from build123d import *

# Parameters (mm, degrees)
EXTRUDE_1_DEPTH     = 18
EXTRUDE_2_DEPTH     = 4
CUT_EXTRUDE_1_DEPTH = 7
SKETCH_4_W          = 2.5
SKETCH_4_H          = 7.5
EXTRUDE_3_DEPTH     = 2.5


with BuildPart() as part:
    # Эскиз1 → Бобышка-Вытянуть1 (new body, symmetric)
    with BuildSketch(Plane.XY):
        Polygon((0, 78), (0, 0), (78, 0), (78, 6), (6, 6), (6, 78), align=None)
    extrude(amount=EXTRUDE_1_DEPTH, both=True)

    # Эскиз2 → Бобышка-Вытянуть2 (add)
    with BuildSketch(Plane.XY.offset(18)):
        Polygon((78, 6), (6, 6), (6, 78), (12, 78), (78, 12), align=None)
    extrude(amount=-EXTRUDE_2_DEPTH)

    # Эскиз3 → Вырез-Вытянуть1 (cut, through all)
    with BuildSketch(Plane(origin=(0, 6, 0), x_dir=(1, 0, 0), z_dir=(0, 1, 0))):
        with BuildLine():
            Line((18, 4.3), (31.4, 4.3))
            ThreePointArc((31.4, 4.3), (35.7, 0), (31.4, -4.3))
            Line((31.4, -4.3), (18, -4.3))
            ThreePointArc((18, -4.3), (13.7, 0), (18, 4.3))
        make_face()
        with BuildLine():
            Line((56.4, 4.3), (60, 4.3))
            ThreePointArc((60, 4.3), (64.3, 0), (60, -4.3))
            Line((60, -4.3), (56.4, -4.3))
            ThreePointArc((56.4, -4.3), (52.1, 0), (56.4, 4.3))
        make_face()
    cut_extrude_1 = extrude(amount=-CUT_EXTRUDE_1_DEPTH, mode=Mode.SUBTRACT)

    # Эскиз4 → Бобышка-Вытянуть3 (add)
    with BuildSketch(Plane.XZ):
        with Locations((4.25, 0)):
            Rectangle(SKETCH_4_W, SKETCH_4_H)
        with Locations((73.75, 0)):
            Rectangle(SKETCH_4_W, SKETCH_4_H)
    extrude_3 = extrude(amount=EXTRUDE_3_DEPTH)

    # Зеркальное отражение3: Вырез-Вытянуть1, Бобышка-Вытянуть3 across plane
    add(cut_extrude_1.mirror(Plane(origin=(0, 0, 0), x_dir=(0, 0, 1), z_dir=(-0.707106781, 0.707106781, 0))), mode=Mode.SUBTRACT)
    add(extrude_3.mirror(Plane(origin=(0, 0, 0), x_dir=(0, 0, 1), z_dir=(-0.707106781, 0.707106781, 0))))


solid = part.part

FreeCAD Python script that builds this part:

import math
import FreeCAD as App
import Part
import Sketcher

doc = App.newDocument("Part")
body = doc.addObject("PartDesign::Body", "Body")

# Sketch on XY plane
sketch1 = doc.addObject("Sketcher::SketchObject", "Sketch")
body.addObject(sketch1)
sketch1.AttachmentSupport = (doc.XY_Plane, [""])
sketch1.MapMode = "FlatFace"
sketch1.addGeometry([
    Part.LineSegment(App.Vector(0, 78, 0), App.Vector(0, 0, 0)),  # 0
    Part.LineSegment(App.Vector(0, 0, 0), App.Vector(78, 0, 0)),  # 1
    Part.LineSegment(App.Vector(78, 0, 0), App.Vector(78, 6, 0)),  # 2
    Part.LineSegment(App.Vector(78, 6, 0), App.Vector(6, 6, 0)),  # 3
    Part.LineSegment(App.Vector(6, 6, 0), App.Vector(6, 78, 0)),  # 4
    Part.LineSegment(App.Vector(6, 78, 0), App.Vector(0, 78, 0)),  # 5
], False)
sketch1.addConstraint([
    Sketcher.Constraint("Coincident", 0, 2, 1, 1),
    Sketcher.Constraint("Coincident", 1, 2, 2, 1),
    Sketcher.Constraint("Coincident", 2, 2, 3, 1),
    Sketcher.Constraint("Coincident", 3, 2, 4, 1),
    Sketcher.Constraint("Coincident", 4, 2, 5, 1),
    Sketcher.Constraint("Coincident", 5, 2, 0, 1),
    Sketcher.Constraint("Vertical", 0),
    Sketcher.Constraint("Horizontal", 1),
    Sketcher.Constraint("Vertical", 2),
    Sketcher.Constraint("Horizontal", 3),
    Sketcher.Constraint("Vertical", 4),
    Sketcher.Constraint("Horizontal", 5),
    Sketcher.Constraint("Coincident", 0, 2, -1, 1),
    Sketcher.Constraint("Equal", 1, 0),
    Sketcher.Constraint("Equal", 5, 2),
    Sketcher.Constraint("DistanceX", 1, 1, 1, 2, 78.0),
    Sketcher.Constraint("DistanceX", 3, 2, 3, 1, 72.0),
])
pad1 = doc.addObject("PartDesign::Pad", "Pad")
body.addObject(pad1)
pad1.Profile = sketch1
pad1.Length = 36
pad1.Midplane = True

# Sketch on XY plane
sketch2 = doc.addObject("Sketcher::SketchObject", "Sketch001")
body.addObject(sketch2)
sketch2.AttachmentSupport = (doc.XY_Plane, [""])
sketch2.MapMode = "FlatFace"
sketch2.AttachmentOffset = App.Placement(App.Vector(0, 0, 18), App.Rotation())
sketch2.addGeometry([
    Part.LineSegment(App.Vector(6, 6, 0), App.Vector(78, 6, 0)),  # 0
    Part.LineSegment(App.Vector(78, 6, 0), App.Vector(78, 12, 0)),  # 1
    Part.LineSegment(App.Vector(78, 12, 0), App.Vector(12, 78, 0)),  # 2
    Part.LineSegment(App.Vector(12, 78, 0), App.Vector(6, 78, 0)),  # 3
    Part.LineSegment(App.Vector(6, 78, 0), App.Vector(6, 6, 0)),  # 4
], False)
sketch2.addConstraint([
    Sketcher.Constraint("Coincident", 0, 2, 1, 1),
    Sketcher.Constraint("Coincident", 1, 2, 2, 1),
    Sketcher.Constraint("Coincident", 2, 2, 3, 1),
    Sketcher.Constraint("Coincident", 3, 2, 4, 1),
    Sketcher.Constraint("Coincident", 4, 2, 0, 1),
    Sketcher.Constraint("Horizontal", 0),
    Sketcher.Constraint("Vertical", 1),
    Sketcher.Constraint("Horizontal", 3),
    Sketcher.Constraint("Vertical", 4),
    Sketcher.Constraint("Equal", 3, 1),
    Sketcher.Constraint("Equal", 0, 4),
    Sketcher.Constraint("DistanceX", 0, 1, 0, 2, 72.0),
    Sketcher.Constraint("DistanceX", 3, 2, 3, 1, 6.0),
    Sketcher.Constraint("DistanceX", -1, 1, 0, 2, 78.0),
    Sketcher.Constraint("DistanceY", -1, 1, 0, 2, 6.0),
])
pad2 = doc.addObject("PartDesign::Pad", "Pad001")
body.addObject(pad2)
pad2.Profile = sketch2
pad2.Length = 4
pad2.Reversed = True

# Sketch on XZ plane
sketch3 = doc.addObject("Sketcher::SketchObject", "Sketch002")
body.addObject(sketch3)
sketch3.AttachmentSupport = (doc.XZ_Plane, [""])
sketch3.MapMode = "FlatFace"
sketch3.AttachmentOffset = App.Placement(App.Vector(0, 0, -6), App.Rotation())
sketch3.addGeometry([
    Part.LineSegment(App.Vector(31.4, -4.3, 0), App.Vector(18, -4.3, 0)),  # 0
    Part.ArcOfCircle(Part.Circle(App.Vector(18, 0, 0), App.Vector(0, 0, 1), 4.3), math.radians(90), math.radians(270)),  # 1
    Part.LineSegment(App.Vector(18, 4.3, 0), App.Vector(31.4, 4.3, 0)),  # 2
    Part.ArcOfCircle(Part.Circle(App.Vector(31.4, 0, 0), App.Vector(0, 0, 1), 4.3), math.radians(-90), math.radians(90)),  # 3
    Part.LineSegment(App.Vector(60, -4.3, 0), App.Vector(56.4, -4.3, 0)),  # 4
    Part.ArcOfCircle(Part.Circle(App.Vector(56.4, 0, 0), App.Vector(0, 0, 1), 4.3), math.radians(90), math.radians(270)),  # 5
    Part.LineSegment(App.Vector(56.4, 4.3, 0), App.Vector(60, 4.3, 0)),  # 6
    Part.ArcOfCircle(Part.Circle(App.Vector(60, 0, 0), App.Vector(0, 0, 1), 4.3), math.radians(-90), math.radians(90)),  # 7
], False)
sketch3.addConstraint([
    Sketcher.Constraint("Tangent", 0, 2, 1, 2),
    Sketcher.Constraint("Tangent", 1, 1, 2, 1),
    Sketcher.Constraint("Tangent", 2, 2, 3, 2),
    Sketcher.Constraint("Tangent", 3, 1, 0, 1),
    Sketcher.Constraint("Tangent", 4, 2, 5, 2),
    Sketcher.Constraint("Tangent", 5, 1, 6, 1),
    Sketcher.Constraint("Tangent", 6, 2, 7, 2),
    Sketcher.Constraint("Tangent", 7, 1, 4, 1),
    Sketcher.Constraint("Horizontal", 0),
    Sketcher.Constraint("Horizontal", 2),
    Sketcher.Constraint("Horizontal", 4),
    Sketcher.Constraint("Horizontal", 6),
    Sketcher.Constraint("Equal", 3, 5),
    Sketcher.Constraint("PointOnObject", 1, 3, -1),
    Sketcher.Constraint("PointOnObject", 5, 3, -1),
    Sketcher.Constraint("Radius", 1, 4.3),
    Sketcher.Constraint("DistanceX", 0, 2, 0, 1, 13.4),
    Sketcher.Constraint("DistanceX", 4, 2, 4, 1, 3.6),
    Sketcher.Constraint("DistanceX", -1, 1, 1, 3, 18.0),
    Sketcher.Constraint("DistanceX", -1, 1, 7, 3, 60.0),
])
pocket1 = doc.addObject("PartDesign::Pocket", "Pocket")
body.addObject(pocket1)
pocket1.Profile = sketch3
pocket1.Type = "ThroughAll"
pocket1.Reversed = True

# Sketch on XZ plane
sketch4 = doc.addObject("Sketcher::SketchObject", "Sketch003")
body.addObject(sketch4)
sketch4.AttachmentSupport = (doc.XZ_Plane, [""])
sketch4.MapMode = "FlatFace"
sketch4.addGeometry([
    Part.LineSegment(App.Vector(3, 3.8, 0), App.Vector(3, -3.8, 0)),  # 0
    Part.LineSegment(App.Vector(3, -3.8, 0), App.Vector(5.5, -3.8, 0)),  # 1
    Part.LineSegment(App.Vector(5.5, -3.8, 0), App.Vector(5.5, 3.8, 0)),  # 2
    Part.LineSegment(App.Vector(5.5, 3.8, 0), App.Vector(3, 3.8, 0)),  # 3
    Part.LineSegment(App.Vector(72.5, 3.8, 0), App.Vector(72.5, -3.8, 0)),  # 4
    Part.LineSegment(App.Vector(72.5, -3.8, 0), App.Vector(75, -3.8, 0)),  # 5
    Part.LineSegment(App.Vector(75, -3.8, 0), App.Vector(75, 3.8, 0)),  # 6
    Part.LineSegment(App.Vector(75, 3.8, 0), App.Vector(72.5, 3.8, 0)),  # 7
], False)
sketch4.addConstraint([
    Sketcher.Constraint("Coincident", 0, 2, 1, 1),
    Sketcher.Constraint("Coincident", 1, 2, 2, 1),
    Sketcher.Constraint("Coincident", 2, 2, 3, 1),
    Sketcher.Constraint("Coincident", 3, 2, 0, 1),
    Sketcher.Constraint("Coincident", 4, 2, 5, 1),
    Sketcher.Constraint("Coincident", 5, 2, 6, 1),
    Sketcher.Constraint("Coincident", 6, 2, 7, 1),
    Sketcher.Constraint("Coincident", 7, 2, 4, 1),
    Sketcher.Constraint("Vertical", 0),
    Sketcher.Constraint("Horizontal", 1),
    Sketcher.Constraint("Vertical", 2),
    Sketcher.Constraint("Horizontal", 3),
    Sketcher.Constraint("Vertical", 4),
    Sketcher.Constraint("Horizontal", 5),
    Sketcher.Constraint("Vertical", 6),
    Sketcher.Constraint("Horizontal", 7),
    Sketcher.Constraint("Horizontal", 1, 2, 4, 2),
    Sketcher.Constraint("Horizontal", 3, 2, 6, 2),
    Sketcher.Constraint("Equal", 3, 5),
    Sketcher.Constraint("DistanceX", 1, 1, 1, 2, 2.5),
    Sketcher.Constraint("DistanceY", 0, 2, 0, 1, 7.5),
    Sketcher.Constraint("DistanceX", -1, 1, 0, 2, 3.0),
    Sketcher.Constraint("DistanceX", -1, 1, 5, 2, 75.0),
    Sketcher.Constraint("DistanceY", 0, 2, -1, 1, 3.75),
])
pad3 = doc.addObject("PartDesign::Pad", "Pad002")
body.addObject(pad3)
pad3.Profile = sketch4
pad3.Length = 2.5
doc.recompute()

datumplane = doc.addObject("PartDesign::Plane", "DatumPlane")
body.addObject(datumplane)
datumplane.Placement = App.Placement(App.Vector(0, 0, 0), App.Rotation(App.Vector(0.707106781, 0.707106781, 0), App.Vector(0, 0, -1), App.Vector(-0.707106781, 0.707106781, 0), "ZXY"))
mirrored = doc.addObject("PartDesign::Mirrored", "Mirrored")
body.addObject(mirrored)
mirrored.Originals = [pocket1, pad3]
mirrored.MirrorPlane = (datumplane, [""])
body.Tip = mirrored

doc.recompute()
